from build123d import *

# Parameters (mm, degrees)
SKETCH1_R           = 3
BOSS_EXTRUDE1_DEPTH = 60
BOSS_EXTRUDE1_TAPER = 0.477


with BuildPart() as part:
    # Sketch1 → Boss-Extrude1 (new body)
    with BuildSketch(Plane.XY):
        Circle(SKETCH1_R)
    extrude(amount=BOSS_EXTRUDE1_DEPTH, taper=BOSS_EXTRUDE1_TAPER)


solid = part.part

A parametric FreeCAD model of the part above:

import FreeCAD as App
import Part
import Sketcher

doc = App.newDocument("Part")
body = doc.addObject("PartDesign::Body", "Body")

sketch1 = body.newObject("Sketcher::SketchObject", "Sketch")
sketch1.AttachmentSupport = (doc.getObject("XY_Plane"), [""])
sketch1.MapMode = "FlatFace"
sketch1.addGeometry(Part.Circle(App.Vector(0, 0, 0), App.Vector(0, 0, 1), 3), False)
sketch1.addConstraint([
    Sketcher.Constraint("Coincident", 0, 3, -1, 1),
    Sketcher.Constraint("Diameter", 0, 6.0),
])
pad1 = body.newObject("PartDesign::Pad", "Pad")
pad1.Profile = sketch1
pad1.Length = 60
pad1.TaperAngle = -0.477

doc.recompute()
